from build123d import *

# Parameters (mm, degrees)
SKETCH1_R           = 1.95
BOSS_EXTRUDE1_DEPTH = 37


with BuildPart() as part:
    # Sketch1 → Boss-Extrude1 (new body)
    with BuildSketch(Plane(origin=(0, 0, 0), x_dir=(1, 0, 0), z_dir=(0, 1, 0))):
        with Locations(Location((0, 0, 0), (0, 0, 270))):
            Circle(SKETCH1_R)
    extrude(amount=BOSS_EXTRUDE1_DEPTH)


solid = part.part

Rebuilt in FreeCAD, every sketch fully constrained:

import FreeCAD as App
import Part
import Sketcher
from FreeCAD import Vector
Q = App.Units.Quantity

doc = App.newDocument("Part")
body = doc.addObject("PartDesign::Body", "Body")

# Sketch on XZ plane
sketch1 = body.newObject("Sketcher::SketchObject", "Sketch")
sketch1.AttachmentSupport = (doc.getObject("XZ_Plane"), [""])
sketch1.MapMode = "FlatFace"
sketch1.addGeometry(Part.Circle(Vector(0, 0, 0), Vector(0, 0, 1), 1.9), False)
sketch1.addConstraint([
    Sketcher.Constraint("Coincident", 0, 3, -1, 1),
    Sketcher.Constraint("Diameter", 0, Q("3.9 mm")),
])
pad1 = body.newObject("PartDesign::Pad", "Pad")
pad1.Profile = sketch1
pad1.Length = 37
pad1.Reversed = True

doc.recompute()
